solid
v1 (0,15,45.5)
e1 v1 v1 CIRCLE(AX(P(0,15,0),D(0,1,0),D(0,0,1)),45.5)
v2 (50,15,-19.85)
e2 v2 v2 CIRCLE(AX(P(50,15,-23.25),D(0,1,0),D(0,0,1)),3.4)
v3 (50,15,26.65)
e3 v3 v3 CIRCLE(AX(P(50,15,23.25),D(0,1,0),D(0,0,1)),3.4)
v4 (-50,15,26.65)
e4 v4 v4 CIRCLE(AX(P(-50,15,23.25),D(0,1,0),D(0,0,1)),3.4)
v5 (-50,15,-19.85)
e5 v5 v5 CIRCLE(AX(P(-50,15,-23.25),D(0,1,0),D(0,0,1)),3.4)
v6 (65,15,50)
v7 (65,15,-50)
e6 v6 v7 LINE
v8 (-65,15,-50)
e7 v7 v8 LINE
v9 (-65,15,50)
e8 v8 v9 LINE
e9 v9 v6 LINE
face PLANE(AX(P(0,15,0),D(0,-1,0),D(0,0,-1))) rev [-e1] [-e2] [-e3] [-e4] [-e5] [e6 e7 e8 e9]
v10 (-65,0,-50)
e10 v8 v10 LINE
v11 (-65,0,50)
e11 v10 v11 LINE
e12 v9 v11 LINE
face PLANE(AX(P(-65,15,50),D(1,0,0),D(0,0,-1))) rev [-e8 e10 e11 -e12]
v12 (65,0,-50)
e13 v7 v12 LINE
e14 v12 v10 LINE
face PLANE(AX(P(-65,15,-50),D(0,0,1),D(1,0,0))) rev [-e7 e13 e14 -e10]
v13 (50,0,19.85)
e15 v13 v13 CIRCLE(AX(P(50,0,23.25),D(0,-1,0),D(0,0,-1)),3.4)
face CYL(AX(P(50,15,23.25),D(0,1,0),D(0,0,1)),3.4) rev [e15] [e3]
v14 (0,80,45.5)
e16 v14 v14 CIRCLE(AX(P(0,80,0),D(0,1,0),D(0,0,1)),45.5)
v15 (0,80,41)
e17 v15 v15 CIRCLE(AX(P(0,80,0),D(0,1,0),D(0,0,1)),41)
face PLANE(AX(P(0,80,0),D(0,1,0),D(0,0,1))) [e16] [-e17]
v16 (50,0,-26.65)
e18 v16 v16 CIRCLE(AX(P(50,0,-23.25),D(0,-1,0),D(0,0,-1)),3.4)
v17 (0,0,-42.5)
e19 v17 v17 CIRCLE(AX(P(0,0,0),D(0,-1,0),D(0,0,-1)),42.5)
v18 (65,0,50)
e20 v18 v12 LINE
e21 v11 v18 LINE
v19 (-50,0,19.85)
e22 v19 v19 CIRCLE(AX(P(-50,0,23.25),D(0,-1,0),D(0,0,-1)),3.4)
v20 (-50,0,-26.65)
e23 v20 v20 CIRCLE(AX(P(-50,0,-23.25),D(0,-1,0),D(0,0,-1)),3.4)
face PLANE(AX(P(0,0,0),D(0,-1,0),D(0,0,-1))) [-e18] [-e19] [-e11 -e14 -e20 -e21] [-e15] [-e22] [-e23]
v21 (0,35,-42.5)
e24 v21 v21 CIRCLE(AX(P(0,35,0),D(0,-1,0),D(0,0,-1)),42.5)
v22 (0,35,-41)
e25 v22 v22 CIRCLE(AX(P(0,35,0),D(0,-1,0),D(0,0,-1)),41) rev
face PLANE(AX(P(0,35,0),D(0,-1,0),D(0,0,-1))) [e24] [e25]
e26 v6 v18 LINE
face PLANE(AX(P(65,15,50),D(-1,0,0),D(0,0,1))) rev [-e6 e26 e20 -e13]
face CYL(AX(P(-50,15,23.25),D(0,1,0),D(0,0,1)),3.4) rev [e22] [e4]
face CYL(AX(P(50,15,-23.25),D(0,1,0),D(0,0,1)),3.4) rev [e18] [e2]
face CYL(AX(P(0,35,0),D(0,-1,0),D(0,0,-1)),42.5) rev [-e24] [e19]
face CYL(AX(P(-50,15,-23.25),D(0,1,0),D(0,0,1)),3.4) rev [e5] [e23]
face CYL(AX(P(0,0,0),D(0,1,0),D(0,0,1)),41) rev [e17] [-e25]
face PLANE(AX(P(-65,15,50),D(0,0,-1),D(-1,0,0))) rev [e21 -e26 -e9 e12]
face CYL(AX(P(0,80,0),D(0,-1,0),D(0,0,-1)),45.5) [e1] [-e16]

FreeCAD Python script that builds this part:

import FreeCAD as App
import Part
import Sketcher
from FreeCAD import Vector

doc = App.newDocument("Part")
params = doc.addObject("Spreadsheet::Sheet", "Params")
for row, (alias, value) in enumerate([
    ("sketch1_width", "130 mm"),
    ("sketch1_height", "100 mm"),
    ("pad1_length", "15 mm"),
    ("sketch2_diameter", "91 mm"),
    ("pad2_length", "65 mm"),
    ("sketch3_diameter", "82 mm"),
    ("sketch4_diameter", "85 mm"),
    ("pocket2_length", "35 mm"),
    ("sketch5_diameter", "6.8 mm"),
    ("hole_diameter", "6.8 mm"),
    ("hole_depth", "17.707074 mm"),
], start=1):
    params.set(f"A{row}", alias)
    params.set(f"B{row}", "=" + value)
    params.setAlias(f"B{row}", alias)

body = doc.addObject("PartDesign::Body", "Body")

# Sketch on XZ plane
sketch1 = doc.addObject("Sketcher::SketchObject", "Sketch")
body.addObject(sketch1)
sketch1.AttachmentSupport = (doc.XZ_Plane, [""])
sketch1.MapMode = "FlatFace"
sketch1.addGeometry([
    Part.LineSegment(Vector(-65, -50, 0), Vector(-65, 50, 0)),
    Part.LineSegment(Vector(-65, 50, 0), Vector(65, 50, 0)),
    Part.LineSegment(Vector(65, 50, 0), Vector(65, -50, 0)),
    Part.LineSegment(Vector(65, -50, 0), Vector(-65, -50, 0)),
], False)
sketch1.addConstraint([
    Sketcher.Constraint("Coincident", 0, 2, 1, 1),
    Sketcher.Constraint("Coincident", 1, 2, 2, 1),
    Sketcher.Constraint("Coincident", 2, 2, 3, 1),
    Sketcher.Constraint("Coincident", 3, 2, 0, 1),
    Sketcher.Constraint("Vertical", 0),
    Sketcher.Constraint("Horizontal", 1),
    Sketcher.Constraint("Vertical", 2),
    Sketcher.Constraint("Horizontal", 3),
    Sketcher.Constraint("Symmetric", 0, 2, 2, 2, -1, 1),
    Sketcher.Constraint("DistanceX", 1, 1, 1, 2, 130.0),
    Sketcher.Constraint("DistanceY", 0, 1, 0, 2, 100.0),
])
sketch1.setExpression("Constraints[9]", "Params.sketch1_width")
sketch1.setExpression("Constraints[10]", "Params.sketch1_height")
pad1 = doc.addObject("PartDesign::Pad", "Pad")
body.addObject(pad1)
pad1.Profile = sketch1
pad1.setExpression("Length", "Params.pad1_length")
pad1.Reversed = True

# Sketch on XZ plane
sketch2 = doc.addObject("Sketcher::SketchObject", "Sketch001")
body.addObject(sketch2)
sketch2.AttachmentSupport = (doc.XZ_Plane, [""])
sketch2.MapMode = "FlatFace"
sketch2.AttachmentOffset = App.Placement(Vector(0, 0, -15), App.Rotation())
sketch2.addGeometry(Part.Circle(Vector(0, 0, 0), Vector(0, 0, 1), 46), False)
sketch2.addConstraint([
    Sketcher.Constraint("Coincident", 0, 3, -1, 1),
    Sketcher.Constraint("Diameter", 0, 91.0),
])
sketch2.setExpression("Constraints[1]", "Params.sketch2_diameter")
pad2 = doc.addObject("PartDesign::Pad", "Pad001")
body.addObject(pad2)
pad2.Profile = sketch2
pad2.setExpression("Length", "Params.pad2_length")
pad2.Reversed = True

# Sketch on XZ plane
sketch3 = doc.addObject("Sketcher::SketchObject", "Sketch002")
body.addObject(sketch3)
sketch3.AttachmentSupport = (doc.XZ_Plane, [""])
sketch3.MapMode = "FlatFace"
sketch3.AttachmentOffset = App.Placement(Vector(0, 0, -80), App.Rotation())
sketch3.addGeometry(Part.Circle(Vector(0, 0, 0), Vector(0, 0, 1), 41), False)
sketch3.addConstraint([
    Sketcher.Constraint("Coincident", 0, 3, -1, 1),
    Sketcher.Constraint("Diameter", 0, 82.0),
])
sketch3.setExpression("Constraints[1]", "Params.sketch3_diameter")
pocket1 = doc.addObject("PartDesign::Pocket", "Pocket")
body.addObject(pocket1)
pocket1.Profile = sketch3
pocket1.Type = "ThroughAll"
pocket1.Reversed = True

# Sketch on XZ plane
sketch4 = doc.addObject("Sketcher::SketchObject", "Sketch003")
body.addObject(sketch4)
sketch4.AttachmentSupport = (doc.XZ_Plane, [""])
sketch4.MapMode = "FlatFace"
sketch4.addGeometry(Part.Circle(Vector(0, 0, 0), Vector(0, 0, 1), 42), False)
sketch4.addConstraint([
    Sketcher.Constraint("Coincident", 0, 3, -1, 1),
    Sketcher.Constraint("Diameter", 0, 85.0),
])
sketch4.setExpression("Constraints[1]", "Params.sketch4_diameter")
pocket2 = doc.addObject("PartDesign::Pocket", "Pocket001")
body.addObject(pocket2)
pocket2.Profile = sketch4
pocket2.setExpression("Length", "Params.pocket2_length")

# Sketch on XZ plane
sketch5 = doc.addObject("Sketcher::SketchObject", "Sketch004")
body.addObject(sketch5)
sketch5.AttachmentSupport = (doc.XZ_Plane, [""])
sketch5.MapMode = "FlatFace"
sketch5.AttachmentOffset = App.Placement(Vector(0, 0, -15), App.Rotation())
sketch5.addGeometry([
    Part.Circle(Vector(-50, -23.2, 0), Vector(0, 0, 1), 3.4),
    Part.Circle(Vector(-50, 23.2, 0), Vector(0, 0, 1), 3.4),
    Part.Circle(Vector(50, 23.2, 0), Vector(0, 0, 1), 3.4),
    Part.Circle(Vector(50, -23.2, 0), Vector(0, 0, 1), 3.4),
], False)
sketch5.addConstraint([
    Sketcher.Constraint("Equal", 0, 1),
    Sketcher.Constraint("Equal", 1, 2),
    Sketcher.Constraint("Equal", 2, 3),
    Sketcher.Constraint("Symmetric", 0, 3, 2, 3, -1, 1),
    Sketcher.Constraint("Symmetric", 1, 3, 3, 3, -1, 1),
    Sketcher.Constraint("Symmetric", 1, 3, 2, 3, -2),
    Sketcher.Constraint("Diameter", 0, 6.8),
    Sketcher.Constraint("DistanceX", 0, 3, -1, 1, 50.0),
    Sketcher.Constraint("DistanceY", 0, 3, 1, 3, 46.5),
])
sketch5.setExpression("Constraints[6]", "Params.sketch5_diameter")
doc.recompute()
hole = doc.addObject("PartDesign::Hole", "Hole")
body.addObject(hole)
hole.Profile = sketch5
hole.ThreadType = "None"
hole.setExpression("Diameter", "Params.hole_diameter")
hole.DepthType = "Dimension"
hole.setExpression("Depth", "Params.hole_depth")
hole.DrillPoint = "Angled"
hole.DrillPointAngle = 118
hole.Reversed = True

doc.recompute()
